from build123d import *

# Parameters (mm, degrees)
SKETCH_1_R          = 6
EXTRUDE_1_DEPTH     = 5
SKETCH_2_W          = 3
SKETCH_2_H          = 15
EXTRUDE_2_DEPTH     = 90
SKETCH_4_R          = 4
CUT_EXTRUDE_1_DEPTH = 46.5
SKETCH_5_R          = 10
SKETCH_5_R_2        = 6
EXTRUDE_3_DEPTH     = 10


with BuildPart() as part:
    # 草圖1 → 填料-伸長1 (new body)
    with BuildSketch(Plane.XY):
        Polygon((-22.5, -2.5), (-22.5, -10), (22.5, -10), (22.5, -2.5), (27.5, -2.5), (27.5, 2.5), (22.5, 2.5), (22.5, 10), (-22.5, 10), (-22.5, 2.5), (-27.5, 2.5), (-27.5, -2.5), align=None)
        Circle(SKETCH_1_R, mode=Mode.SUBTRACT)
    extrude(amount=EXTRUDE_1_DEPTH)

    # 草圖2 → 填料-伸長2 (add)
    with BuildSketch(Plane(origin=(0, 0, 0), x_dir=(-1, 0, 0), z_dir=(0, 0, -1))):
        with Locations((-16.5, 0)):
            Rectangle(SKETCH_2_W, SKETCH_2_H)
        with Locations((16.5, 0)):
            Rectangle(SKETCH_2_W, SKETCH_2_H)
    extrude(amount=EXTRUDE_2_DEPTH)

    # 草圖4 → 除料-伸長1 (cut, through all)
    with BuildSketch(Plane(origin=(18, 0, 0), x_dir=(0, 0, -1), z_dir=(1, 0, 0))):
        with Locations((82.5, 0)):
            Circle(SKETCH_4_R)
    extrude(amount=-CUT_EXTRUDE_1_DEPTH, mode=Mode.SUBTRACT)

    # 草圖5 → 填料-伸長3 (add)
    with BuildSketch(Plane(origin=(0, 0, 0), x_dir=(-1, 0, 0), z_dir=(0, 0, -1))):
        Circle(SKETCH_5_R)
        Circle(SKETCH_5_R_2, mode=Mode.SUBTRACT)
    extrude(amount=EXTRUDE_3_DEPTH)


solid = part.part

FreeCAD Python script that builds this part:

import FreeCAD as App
import Part
import Sketcher
from FreeCAD import Vector
Q = App.Units.Quantity


def add_polygon(sketch, points):
    """Adds a closed chain of lines whose ends are joined by coincident constraints."""
    first, n = sketch.GeometryCount, len(points)
    for a, b in zip(points, points[1:] + points[:1]):
        sketch.addGeometry(Part.LineSegment(App.Vector(*a, 0), App.Vector(*b, 0)), False)
    for i in range(n):
        sketch.addConstraint(Sketcher.Constraint("Coincident", first + i, 2, first + (i + 1) % n, 1))

doc = App.newDocument("Part")
body = doc.addObject("PartDesign::Body", "Body")

# Sketch on XY plane
sketch1 = doc.addObject("Sketcher::SketchObject", "Sketch")
body.addObject(sketch1)
sketch1.AttachmentSupport = (doc.XY_Plane, [""])
sketch1.MapMode = "FlatFace"
add_polygon(sketch1, [(-22.5, -2.5), (-22.5, -10), (22.5, -10), (22.5, -2.5), (27.5, -2.5), (27.5, 2.5), (22.5, 2.5), (22.5, 10), (-22.5, 10), (-22.5, 2.5), (-27.5, 2.5), (-27.5, -2.5)])  # lines 0-11
sketch1.addGeometry(Part.Circle(Vector(0, 0, 0), Vector(0, 0, 1), 6), False)  # 12
sketch1.addConstraint(Sketcher.Constraint("Vertical", 0))
sketch1.addConstraint(Sketcher.Constraint("Horizontal", 1))
sketch1.addConstraint(Sketcher.Constraint("Vertical", 2))
sketch1.addConstraint(Sketcher.Constraint("Horizontal", 3))
sketch1.addConstraint(Sketcher.Constraint("Vertical", 4))
sketch1.addConstraint(Sketcher.Constraint("Horizontal", 5))
sketch1.addConstraint(Sketcher.Constraint("Vertical", 6))
sketch1.addConstraint(Sketcher.Constraint("Horizontal", 7))
sketch1.addConstraint(Sketcher.Constraint("Vertical", 8))
sketch1.addConstraint(Sketcher.Constraint("Horizontal", 9))
sketch1.addConstraint(Sketcher.Constraint("Vertical", 10))
sketch1.addConstraint(Sketcher.Constraint("Horizontal", 11))
sketch1.addConstraint(Sketcher.Constraint("Coincident", 12, 3, -1, 1))
sketch1.addConstraint(Sketcher.Constraint("Symmetric", 0, 2, 6, 2, -1, 1))
sketch1.addConstraint(Sketcher.Constraint("Symmetric", 2, 2, 8, 2, -1, 1))
sketch1.addConstraint(Sketcher.Constraint("Symmetric", 4, 2, 10, 2, -1, 1))
sketch1.addConstraint(Sketcher.Constraint("Symmetric", 5, 2, 8, 2, -2))
sketch1.addConstraint(Sketcher.Constraint("Equal", 11, 4))
sketch1.addConstraint(Sketcher.Constraint("Diameter", 12, Q("12 mm")))
sketch1.addConstraint(Sketcher.Constraint("DistanceX", 1, 1, 1, 2, Q("45 mm")))
sketch1.addConstraint(Sketcher.Constraint("DistanceX", 3, 1, 3, 2, Q("5 mm")))
sketch1.addConstraint(Sketcher.Constraint("DistanceY", 0, 2, 0, 1, Q("7.5 mm")))
pad1 = doc.addObject("PartDesign::Pad", "Pad")
body.addObject(pad1)
pad1.Profile = sketch1
pad1.Length = 5

# Sketch on XY plane
sketch2 = doc.addObject("Sketcher::SketchObject", "Sketch001")
body.addObject(sketch2)
sketch2.AttachmentSupport = (doc.XY_Plane, [""])
sketch2.MapMode = "FlatFace"
add_polygon(sketch2, [(18, 7.5), (18, -7.5), (15, -7.5), (15, 7.5)])  # lines 0-3
add_polygon(sketch2, [(-15, 7.5), (-15, -7.5), (-18, -7.5), (-18, 7.5)])  # lines 4-7
sketch2.addConstraint(Sketcher.Constraint("Vertical", 0))
sketch2.addConstraint(Sketcher.Constraint("Horizontal", 1))
sketch2.addConstraint(Sketcher.Constraint("Vertical", 2))
sketch2.addConstraint(Sketcher.Constraint("Horizontal", 3))
sketch2.addConstraint(Sketcher.Constraint("Vertical", 4))
sketch2.addConstraint(Sketcher.Constraint("Horizontal", 5))
sketch2.addConstraint(Sketcher.Constraint("Vertical", 6))
sketch2.addConstraint(Sketcher.Constraint("Horizontal", 7))
sketch2.addConstraint(Sketcher.Constraint("Symmetric", 2, 2, 4, 2, -1, 1))
sketch2.addConstraint(Sketcher.Constraint("Symmetric", 0, 2, 6, 2, -1, 1))
sketch2.addConstraint(Sketcher.Constraint("Horizontal", 1, 2, 4, 2))
sketch2.addConstraint(Sketcher.Constraint("DistanceX", 1, 2, 1, 1, Q("3 mm")))
sketch2.addConstraint(Sketcher.Constraint("DistanceY", 0, 2, 0, 1, Q("15 mm")))
sketch2.addConstraint(Sketcher.Constraint("DistanceX", -1, 1, 0, 2, Q("18 mm")))
pad2 = doc.addObject("PartDesign::Pad", "Pad001")
body.addObject(pad2)
pad2.Profile = sketch2
pad2.Length = 90
pad2.Reversed = True

# Sketch on YZ plane
sketch3 = doc.addObject("Sketcher::SketchObject", "Sketch002")
body.addObject(sketch3)
sketch3.AttachmentSupport = (doc.YZ_Plane, [""])
sketch3.MapMode = "FlatFace"
sketch3.AttachmentOffset = App.Placement(Vector(0, 0, 18), App.Rotation())
sketch3.addGeometry(Part.Circle(Vector(0, -82.5, 0), Vector(0, 0, 1), 4), False)
sketch3.addConstraint(Sketcher.Constraint("PointOnObject", 0, 3, -2))
sketch3.addConstraint(Sketcher.Constraint("Diameter", 0, Q("8 mm")))
sketch3.addConstraint(Sketcher.Constraint("DistanceY", 0, 3, -1, 1, Q("82.5 mm")))
pocket1 = doc.addObject("PartDesign::Pocket", "Pocket")
body.addObject(pocket1)
pocket1.Profile = sketch3
pocket1.Type = "ThroughAll"

# Sketch on XY plane
sketch4 = doc.addObject("Sketcher::SketchObject", "Sketch003")
body.addObject(sketch4)
sketch4.AttachmentSupport = (doc.XY_Plane, [""])
sketch4.MapMode = "FlatFace"
sketch4.addGeometry(Part.Circle(Vector(0, 0, 0), Vector(0, 0, 1), 10), False)
sketch4.addGeometry(Part.Circle(Vector(0, 0, 0), Vector(0, 0, 1), 6), False)
sketch4.addConstraint(Sketcher.Constraint("Coincident", 0, 3, -1, 1))
sketch4.addConstraint(Sketcher.Constraint("Coincident", 1, 3, -1, 1))
sketch4.addConstraint(Sketcher.Constraint("Diameter", 0, Q("20 mm")))
sketch4.addConstraint(Sketcher.Constraint("Diameter", 1, Q("12 mm")))
pad3 = doc.addObject("PartDesign::Pad", "Pad002")
body.addObject(pad3)
pad3.Profile = sketch4
pad3.Length = 10
pad3.Reversed = True

doc.recompute()
